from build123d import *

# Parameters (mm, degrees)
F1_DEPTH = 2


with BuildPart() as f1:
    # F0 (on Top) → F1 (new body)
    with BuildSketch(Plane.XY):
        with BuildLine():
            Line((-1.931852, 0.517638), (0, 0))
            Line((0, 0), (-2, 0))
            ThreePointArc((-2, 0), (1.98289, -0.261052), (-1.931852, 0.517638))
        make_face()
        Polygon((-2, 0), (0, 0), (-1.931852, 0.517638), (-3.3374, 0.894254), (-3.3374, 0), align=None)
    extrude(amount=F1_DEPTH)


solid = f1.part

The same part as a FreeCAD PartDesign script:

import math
import FreeCAD as App
import Part
import Sketcher

V = App.Vector
Q = App.Units.Quantity

doc = App.newDocument("Part")
params = doc.addObject("Spreadsheet::Sheet", "Params")
for row, (alias, value) in enumerate([
    ("sketch1_radius", "2 mm"),
    ("pad1_length", "2 mm"),
], start=1):
    params.set(f"A{row}", alias)
    params.set(f"B{row}", "=" + value)
    params.setAlias(f"B{row}", alias)

body = doc.addObject("PartDesign::Body", "Body")

sketch1 = body.newObject("Sketcher::SketchObject", "Sketch")
sketch1.AttachmentSupport = (doc.getObject("XY_Plane"), [""])
sketch1.MapMode = "FlatFace"
sketch1.addGeometry([
    Part.ArcOfCircle(Part.Circle(V(0, 0, 0), V(0, 0, 1), 2), math.radians(-180), math.radians(165)),
    Part.LineSegment(V(-1.9, 0.5, 0), V(-3.3, 0.9, 0)),
    Part.LineSegment(V(-3.3, 0.9, 0), V(-3.3, 0, 0)),
    Part.LineSegment(V(-3.3, 0, 0), V(-2, 0, 0)),
], False)
sketch1.addConstraint([
    Sketcher.Constraint("Coincident", 0, 2, 1, 1),
    Sketcher.Constraint("Coincident", 1, 2, 2, 1),
    Sketcher.Constraint("Coincident", 2, 2, 3, 1),
    Sketcher.Constraint("Coincident", 3, 2, 0, 1),
    Sketcher.Constraint("Vertical", 2),
    Sketcher.Constraint("Horizontal", 3),
    Sketcher.Constraint("Coincident", 0, 3, -1, 1),
    Sketcher.Constraint("PointOnObject", 2, 2, -1),
    Sketcher.Constraint("Radius", 0, Q("2 mm")),
    Sketcher.Constraint("DistanceX", 3, 1, 3, 2, Q("1.3374 mm")),
    Sketcher.Constraint("Distance", 1, Q("1.455131 mm")),
    Sketcher.Constraint("DistanceX", 0, 2, -1, 1, Q("1.931852 mm")),
])
sketch1.setExpression("Constraints[8]", "Params.sketch1_radius")
pad1 = body.newObject("PartDesign::Pad", "Pad")
pad1.Profile = sketch1
pad1.setExpression("Length", "Params.pad1_length")

doc.recompute()
